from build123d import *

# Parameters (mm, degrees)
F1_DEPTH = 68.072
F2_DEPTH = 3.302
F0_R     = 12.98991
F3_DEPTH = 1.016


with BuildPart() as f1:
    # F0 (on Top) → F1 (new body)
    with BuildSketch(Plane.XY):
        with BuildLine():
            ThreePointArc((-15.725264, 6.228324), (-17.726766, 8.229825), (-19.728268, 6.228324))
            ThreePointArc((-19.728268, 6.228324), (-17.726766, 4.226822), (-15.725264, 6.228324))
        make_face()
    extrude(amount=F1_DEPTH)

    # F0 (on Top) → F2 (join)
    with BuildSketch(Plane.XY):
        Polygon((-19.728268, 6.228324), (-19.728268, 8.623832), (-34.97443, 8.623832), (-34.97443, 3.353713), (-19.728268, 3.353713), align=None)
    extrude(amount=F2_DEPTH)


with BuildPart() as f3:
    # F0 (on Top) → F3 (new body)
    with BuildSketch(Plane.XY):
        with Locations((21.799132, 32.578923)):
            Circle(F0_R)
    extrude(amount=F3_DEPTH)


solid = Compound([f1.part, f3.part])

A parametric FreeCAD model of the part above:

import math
import FreeCAD as App
import Part
import Sketcher

V = App.Vector
Q = App.Units.Quantity

doc = App.newDocument("Part")
body = doc.addObject("PartDesign::Body", "Body")
body.AllowCompound = True

# Sketch on XY plane
sketch1 = doc.addObject("Sketcher::SketchObject", "Sketch")
body.addObject(sketch1)
sketch1.AttachmentSupport = (doc.XY_Plane, [""])
sketch1.MapMode = "FlatFace"
sketch1.addGeometry(Part.ArcOfCircle(Part.Circle(V(-17.7, 6.2, 0), V(0, 0, 1), 2), math.radians(0), math.radians(180)), False)
sketch1.addGeometry(Part.ArcOfCircle(Part.Circle(V(-17.7, 6.2, 0), V(0, 0, 1), 2), math.radians(180), math.radians(360)), False)
sketch1.addConstraint(Sketcher.Constraint("Tangent", 0, 1, 1, 2))
sketch1.addConstraint(Sketcher.Constraint("Coincident", 1, 1, 0, 2))
sketch1.addConstraint(Sketcher.Constraint("Horizontal", 1, 3, 0, 1))
sketch1.addConstraint(Sketcher.Constraint("Horizontal", 0, 1, 1, 1))
sketch1.addConstraint(Sketcher.Constraint("Radius", 0, 2.001502))
sketch1.addConstraint(Sketcher.Constraint("DistanceX", 1, 1, -1, 1, 19.728268))
sketch1.addConstraint(Sketcher.Constraint("DistanceY", -1, 1, 0, 3, 6.228323))
pad1 = doc.addObject("PartDesign::Pad", "Pad")
body.addObject(pad1)
pad1.Profile = sketch1
pad1.Length = Q("2.68 in")

# Sketch on XY plane
sketch2 = doc.addObject("Sketcher::SketchObject", "Sketch001")
body.addObject(sketch2)
sketch2.AttachmentSupport = (doc.XY_Plane, [""])
sketch2.MapMode = "FlatFace"
sketch2.addGeometry(Part.LineSegment(V(-20, 9, 0), V(-35, 9, 0)), False)
sketch2.addGeometry(Part.LineSegment(V(-35, 9, 0), V(-35, 3, 0)), False)
sketch2.addGeometry(Part.LineSegment(V(-35, 3, 0), V(-20, 3, 0)), False)
sketch2.addGeometry(Part.LineSegment(V(-20, 3, 0), V(-20, 9, 0)), False)
sketch2.addConstraint(Sketcher.Constraint("Coincident", 0, 2, 1, 1))
sketch2.addConstraint(Sketcher.Constraint("Coincident", 1, 2, 2, 1))
sketch2.addConstraint(Sketcher.Constraint("Coincident", 2, 2, 3, 1))
sketch2.addConstraint(Sketcher.Constraint("Coincident", 3, 2, 0, 1))
sketch2.addConstraint(Sketcher.Constraint("Horizontal", 0))
sketch2.addConstraint(Sketcher.Constraint("Vertical", 1))
sketch2.addConstraint(Sketcher.Constraint("Horizontal", 2))
sketch2.addConstraint(Sketcher.Constraint("Vertical", 3))
sketch2.addConstraint(Sketcher.Constraint("DistanceX", 0, 2, 0, 1, 15.246162))
sketch2.addConstraint(Sketcher.Constraint("DistanceY", 1, 2, 1, 1, 5.270119))
sketch2.addConstraint(Sketcher.Constraint("DistanceX", 0, 2, -1, 1, 34.97443))
sketch2.addConstraint(Sketcher.Constraint("DistanceY", -1, 1, 0, 2, 8.623832))
pad2 = doc.addObject("PartDesign::Pad", "Pad001")
body.addObject(pad2)
pad2.Profile = sketch2
pad2.Length = Q("0.13 in")
body2 = doc.addObject("PartDesign::Body", "Body001")

# Sketch on XY plane
sketch3 = doc.addObject("Sketcher::SketchObject", "Sketch002")
body2.addObject(sketch3)
sketch3.AttachmentSupport = (doc.getObject("XY_Plane001"), [""])
sketch3.MapMode = "FlatFace"
sketch3.addGeometry(Part.Circle(V(22, 33, 0), V(0, 0, 1), 13), False)
sketch3.addConstraint(Sketcher.Constraint("Diameter", 0, 25.97982))
sketch3.addConstraint(Sketcher.Constraint("DistanceX", -1, 1, 0, 3, 21.799132))
sketch3.addConstraint(Sketcher.Constraint("DistanceY", -1, 1, 0, 3, 32.578923))
pad3 = doc.addObject("PartDesign::Pad", "Pad002")
body2.addObject(pad3)
pad3.Profile = sketch3
pad3.Length = Q("0.04 in")

doc.recompute()
